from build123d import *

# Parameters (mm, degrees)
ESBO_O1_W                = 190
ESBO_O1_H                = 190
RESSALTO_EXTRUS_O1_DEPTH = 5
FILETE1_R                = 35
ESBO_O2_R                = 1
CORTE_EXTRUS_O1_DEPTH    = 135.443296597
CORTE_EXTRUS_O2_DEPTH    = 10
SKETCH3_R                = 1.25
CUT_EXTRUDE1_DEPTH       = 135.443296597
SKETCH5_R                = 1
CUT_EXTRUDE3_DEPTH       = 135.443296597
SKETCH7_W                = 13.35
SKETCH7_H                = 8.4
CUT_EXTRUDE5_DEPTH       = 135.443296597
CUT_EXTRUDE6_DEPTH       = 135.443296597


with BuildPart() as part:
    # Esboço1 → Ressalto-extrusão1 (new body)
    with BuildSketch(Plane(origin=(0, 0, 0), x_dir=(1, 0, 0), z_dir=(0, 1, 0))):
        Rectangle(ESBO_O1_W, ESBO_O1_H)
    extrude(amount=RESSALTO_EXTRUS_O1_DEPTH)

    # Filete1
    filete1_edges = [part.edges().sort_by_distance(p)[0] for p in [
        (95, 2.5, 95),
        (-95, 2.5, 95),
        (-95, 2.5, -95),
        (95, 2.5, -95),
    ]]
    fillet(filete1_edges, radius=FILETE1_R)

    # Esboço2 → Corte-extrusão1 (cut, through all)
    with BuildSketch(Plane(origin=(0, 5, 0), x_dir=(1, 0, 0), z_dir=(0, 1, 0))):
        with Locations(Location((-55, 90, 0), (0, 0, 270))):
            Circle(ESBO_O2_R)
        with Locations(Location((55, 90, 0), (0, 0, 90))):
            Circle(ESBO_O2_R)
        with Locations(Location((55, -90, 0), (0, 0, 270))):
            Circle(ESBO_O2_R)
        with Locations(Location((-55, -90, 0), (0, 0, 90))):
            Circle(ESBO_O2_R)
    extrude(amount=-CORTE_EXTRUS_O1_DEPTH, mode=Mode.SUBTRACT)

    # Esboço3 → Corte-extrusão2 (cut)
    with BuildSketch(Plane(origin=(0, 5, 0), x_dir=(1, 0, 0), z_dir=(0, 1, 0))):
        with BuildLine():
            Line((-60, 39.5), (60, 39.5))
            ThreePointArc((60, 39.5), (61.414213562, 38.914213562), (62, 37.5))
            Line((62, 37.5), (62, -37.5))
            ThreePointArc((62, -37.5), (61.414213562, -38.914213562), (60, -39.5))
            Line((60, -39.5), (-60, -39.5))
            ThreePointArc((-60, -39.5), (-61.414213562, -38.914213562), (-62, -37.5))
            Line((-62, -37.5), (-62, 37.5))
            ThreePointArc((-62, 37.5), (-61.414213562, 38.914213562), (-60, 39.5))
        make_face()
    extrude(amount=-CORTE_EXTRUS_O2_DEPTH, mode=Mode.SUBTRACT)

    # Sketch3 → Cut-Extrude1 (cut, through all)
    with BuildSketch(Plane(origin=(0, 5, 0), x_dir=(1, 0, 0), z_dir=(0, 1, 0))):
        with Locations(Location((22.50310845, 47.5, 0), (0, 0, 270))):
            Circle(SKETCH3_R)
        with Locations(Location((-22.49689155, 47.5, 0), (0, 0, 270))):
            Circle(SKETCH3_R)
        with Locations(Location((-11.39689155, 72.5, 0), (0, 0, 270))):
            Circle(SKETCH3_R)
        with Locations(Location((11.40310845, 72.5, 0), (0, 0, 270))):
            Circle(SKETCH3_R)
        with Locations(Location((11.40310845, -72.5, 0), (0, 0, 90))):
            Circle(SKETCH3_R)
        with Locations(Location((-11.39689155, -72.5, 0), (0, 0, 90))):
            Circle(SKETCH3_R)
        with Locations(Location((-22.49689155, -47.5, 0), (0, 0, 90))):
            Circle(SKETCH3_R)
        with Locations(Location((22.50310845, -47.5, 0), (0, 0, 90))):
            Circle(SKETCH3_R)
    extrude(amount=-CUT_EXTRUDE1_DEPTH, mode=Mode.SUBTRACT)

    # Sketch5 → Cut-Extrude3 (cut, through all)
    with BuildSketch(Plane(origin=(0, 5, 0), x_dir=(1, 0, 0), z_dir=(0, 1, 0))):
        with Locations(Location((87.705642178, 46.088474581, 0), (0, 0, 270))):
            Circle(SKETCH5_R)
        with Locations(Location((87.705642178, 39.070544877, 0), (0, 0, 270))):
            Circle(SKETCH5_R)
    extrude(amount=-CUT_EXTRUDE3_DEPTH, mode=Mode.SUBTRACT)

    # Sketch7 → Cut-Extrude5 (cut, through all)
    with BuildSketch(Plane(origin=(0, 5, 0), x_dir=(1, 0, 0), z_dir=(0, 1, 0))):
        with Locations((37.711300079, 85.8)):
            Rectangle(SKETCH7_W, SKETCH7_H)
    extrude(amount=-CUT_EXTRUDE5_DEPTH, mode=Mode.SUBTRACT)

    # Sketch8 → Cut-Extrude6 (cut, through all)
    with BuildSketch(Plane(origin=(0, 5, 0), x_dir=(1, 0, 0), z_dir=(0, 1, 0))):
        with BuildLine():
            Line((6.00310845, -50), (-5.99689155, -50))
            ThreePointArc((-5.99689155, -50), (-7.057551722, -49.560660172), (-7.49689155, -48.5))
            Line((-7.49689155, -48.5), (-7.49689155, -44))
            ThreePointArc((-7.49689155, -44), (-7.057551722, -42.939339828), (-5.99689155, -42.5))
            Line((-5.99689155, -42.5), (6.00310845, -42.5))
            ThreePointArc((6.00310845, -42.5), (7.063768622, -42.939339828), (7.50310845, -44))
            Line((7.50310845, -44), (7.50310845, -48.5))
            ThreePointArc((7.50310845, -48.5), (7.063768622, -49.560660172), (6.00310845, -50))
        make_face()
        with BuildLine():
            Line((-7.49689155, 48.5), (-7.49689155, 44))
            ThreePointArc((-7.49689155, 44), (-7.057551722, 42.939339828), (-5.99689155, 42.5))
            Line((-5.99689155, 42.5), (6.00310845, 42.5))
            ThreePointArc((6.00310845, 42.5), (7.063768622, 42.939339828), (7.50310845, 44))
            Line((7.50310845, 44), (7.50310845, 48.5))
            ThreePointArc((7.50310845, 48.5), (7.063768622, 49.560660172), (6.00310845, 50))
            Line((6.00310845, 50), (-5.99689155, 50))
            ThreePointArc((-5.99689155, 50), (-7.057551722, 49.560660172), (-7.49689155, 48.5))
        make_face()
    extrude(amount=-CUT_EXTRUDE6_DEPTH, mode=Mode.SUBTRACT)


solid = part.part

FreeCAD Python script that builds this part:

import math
import FreeCAD as App
import Part
import Sketcher

V = App.Vector
Q = App.Units.Quantity


def edges_at(feature, points):
    """Names of the edges that pass closest to the given points."""
    edges = feature.Shape.Edges
    near = lambda p: min(range(len(edges)), key=lambda i: edges[i].distToShape(Part.Vertex(*p))[0])
    return sorted({f"Edge{near(p) + 1}" for p in points})


def add_polygon(sketch, points):
    """Adds a closed chain of lines whose ends are joined by coincident constraints."""
    first, n = sketch.GeometryCount, len(points)
    for a, b in zip(points, points[1:] + points[:1]):
        sketch.addGeometry(Part.LineSegment(App.Vector(*a, 0), App.Vector(*b, 0)), False)
    for i in range(n):
        sketch.addConstraint(Sketcher.Constraint("Coincident", first + i, 2, first + (i + 1) % n, 1))

doc = App.newDocument("Part")
body = doc.addObject("PartDesign::Body", "Body")

sketch1 = doc.addObject("Sketcher::SketchObject", "Sketch")
body.addObject(sketch1)
sketch1.AttachmentSupport = (doc.XZ_Plane, [""])
sketch1.MapMode = "FlatFace"
add_polygon(sketch1, [(-95, -95), (-95, 95), (95, 95), (95, -95)])
sketch1.addConstraint([
    Sketcher.Constraint("Vertical", 0),
    Sketcher.Constraint("Horizontal", 1),
    Sketcher.Constraint("Vertical", 2),
    Sketcher.Constraint("Horizontal", 3),
    Sketcher.Constraint("Symmetric", 0, 2, 2, 2, -1, 1),
    Sketcher.Constraint("Equal", 3, 0),
    Sketcher.Constraint("DistanceX", 1, 1, 1, 2, Q("190 mm")),
])
pad1 = doc.addObject("PartDesign::Pad", "Pad")
body.addObject(pad1)
pad1.Profile = sketch1
pad1.Length = 5
pad1.Reversed = True
doc.recompute()

fillet = doc.addObject("PartDesign::Fillet", "Fillet")
body.addObject(fillet)
fillet.Base = (pad1, edges_at(pad1, [
    (95, 2.5, 95),
    (-95, 2.5, 95),
    (-95, 2.5, -95),
    (95, 2.5, -95),
]))
fillet.Radius = 35

sketch2 = doc.addObject("Sketcher::SketchObject", "Sketch001")
body.addObject(sketch2)
sketch2.AttachmentSupport = (doc.XZ_Plane, [""])
sketch2.MapMode = "FlatFace"
sketch2.AttachmentOffset = App.Placement(V(0, 0, -5), App.Rotation())
sketch2.addGeometry([
    Part.Circle(V(-55, -90, 0), V(0, 0, 1), 1),
    Part.Circle(V(55, -90, 0), V(0, 0, 1), 1),
    Part.Circle(V(55, 90, 0), V(0, 0, 1), 1),
    Part.Circle(V(-55, 90, 0), V(0, 0, 1), 1),
], False)
sketch2.addConstraint([
    Sketcher.Constraint("Equal", 0, 1),
    Sketcher.Constraint("Equal", 1, 2),
    Sketcher.Constraint("Equal", 2, 3),
    Sketcher.Constraint("Symmetric", 0, 3, 2, 3, -1, 1),
    Sketcher.Constraint("Symmetric", 1, 3, 3, 3, -1, 1),
    Sketcher.Constraint("Symmetric", 0, 3, 1, 3, -2),
    Sketcher.Constraint("Diameter", 0, Q("2 mm")),
    Sketcher.Constraint("DistanceX", 0, 3, -1, 1, Q("55 mm")),
    Sketcher.Constraint("DistanceY", 0, 3, -1, 1, Q("90 mm")),
])
pocket1 = doc.addObject("PartDesign::Pocket", "Pocket")
body.addObject(pocket1)
pocket1.Profile = sketch2
pocket1.Type = "ThroughAll"
pocket1.Reversed = True

sketch3 = doc.addObject("Sketcher::SketchObject", "Sketch002")
body.addObject(sketch3)
sketch3.AttachmentSupport = (doc.XZ_Plane, [""])
sketch3.MapMode = "FlatFace"
sketch3.AttachmentOffset = App.Placement(V(0, 0, -5), App.Rotation())
sketch3.addGeometry([
    Part.LineSegment(V(60, -39.5, 0), V(-60, -39.5, 0)),
    Part.ArcOfCircle(Part.Circle(V(-60, -37.5, 0), V(0, 0, 1), 2), math.radians(-180), math.radians(-90)),
    Part.LineSegment(V(-62, -37.5, 0), V(-62, 37.5, 0)),
    Part.ArcOfCircle(Part.Circle(V(-60, 37.5, 0), V(0, 0, 1), 2), math.radians(90), math.radians(180)),
    Part.LineSegment(V(-60, 39.5, 0), V(60, 39.5, 0)),
    Part.ArcOfCircle(Part.Circle(V(60, 37.5, 0), V(0, 0, 1), 2), math.radians(0), math.radians(90)),
    Part.LineSegment(V(62, 37.5, 0), V(62, -37.5, 0)),
    Part.ArcOfCircle(Part.Circle(V(60, -37.5, 0), V(0, 0, 1), 2), math.radians(-90), math.radians(0)),
], False)
sketch3.addConstraint([
    Sketcher.Constraint("Tangent", 0, 2, 1, 2),
    Sketcher.Constraint("Tangent", 1, 1, 2, 1),
    Sketcher.Constraint("Tangent", 2, 2, 3, 2),
    Sketcher.Constraint("Tangent", 3, 1, 4, 1),
    Sketcher.Constraint("Tangent", 4, 2, 5, 2),
    Sketcher.Constraint("Tangent", 5, 1, 6, 1),
    Sketcher.Constraint("Tangent", 6, 2, 7, 2),
    Sketcher.Constraint("Tangent", 7, 1, 0, 1),
    Sketcher.Constraint("Horizontal", 0),
    Sketcher.Constraint("Vertical", 2),
    Sketcher.Constraint("Horizontal", 4),
    Sketcher.Constraint("Vertical", 6),
    Sketcher.Constraint("Equal", 1, 3),
    Sketcher.Constraint("Equal", 3, 5),
    Sketcher.Constraint("Equal", 5, 7),
    Sketcher.Constraint("Symmetric", 1, 3, 5, 3, -1, 1),
    Sketcher.Constraint("Radius", 1, Q("2 mm")),
    Sketcher.Constraint("DistanceX", 0, 2, 0, 1, Q("120 mm")),
    Sketcher.Constraint("DistanceY", 2, 1, 2, 2, Q("75 mm")),
])
pocket2 = doc.addObject("PartDesign::Pocket", "Pocket001")
body.addObject(pocket2)
pocket2.Profile = sketch3
pocket2.Length = 10
pocket2.Reversed = True

sketch4 = doc.addObject("Sketcher::SketchObject", "Sketch003")
body.addObject(sketch4)
sketch4.AttachmentSupport = (doc.XZ_Plane, [""])
sketch4.MapMode = "FlatFace"
sketch4.AttachmentOffset = App.Placement(V(0, 0, -5), App.Rotation())
sketch4.addGeometry([
    Part.Circle(V(22.503108, -47.5, 0), V(0, 0, 1), 1.25),
    Part.Circle(V(-22.496892, -47.5, 0), V(0, 0, 1), 1.25),
    Part.Circle(V(-11.396892, -72.5, 0), V(0, 0, 1), 1.25),
    Part.Circle(V(11.403108, -72.5, 0), V(0, 0, 1), 1.25),
    Part.Circle(V(11.403108, 72.5, 0), V(0, 0, 1), 1.25),
    Part.Circle(V(-11.396892, 72.5, 0), V(0, 0, 1), 1.25),
    Part.Circle(V(-22.496892, 47.5, 0), V(0, 0, 1), 1.25),
    Part.Circle(V(22.503108, 47.5, 0), V(0, 0, 1), 1.25),
], False)
sketch4.addConstraint([
    Sketcher.Constraint("Equal", 0, 1),
    Sketcher.Constraint("Equal", 1, 2),
    Sketcher.Constraint("Equal", 2, 3),
    Sketcher.Constraint("Equal", 3, 4),
    Sketcher.Constraint("Equal", 4, 5),
    Sketcher.Constraint("Equal", 5, 6),
    Sketcher.Constraint("Equal", 6, 7),
    Sketcher.Constraint("Symmetric", 3, 3, 4, 3, -1),
    Sketcher.Constraint("Symmetric", 2, 3, 5, 3, -1),
    Sketcher.Constraint("Symmetric", 1, 3, 6, 3, -1),
    Sketcher.Constraint("Symmetric", 0, 3, 7, 3, -1),
    Sketcher.Constraint("Horizontal", 0, 3, 1, 3),
    Sketcher.Constraint("Horizontal", 2, 3, 3, 3),
    Sketcher.Constraint("Diameter", 0, Q("2.5 mm")),
    Sketcher.Constraint("DistanceX", 1, 3, 0, 3, Q("45 mm")),
    Sketcher.Constraint("DistanceY", 2, 3, 1, 3, Q("25 mm")),
    Sketcher.Constraint("DistanceY", 0, 3, 4, 3, Q("120 mm")),
    Sketcher.Constraint("DistanceX", 1, 3, 2, 3, Q("11.1 mm")),
    Sketcher.Constraint("DistanceX", 2, 3, 3, 3, Q("22.8 mm")),
    Sketcher.Constraint("DistanceX", -1, 1, 0, 3, Q("22.503108 mm")),
])
pocket3 = doc.addObject("PartDesign::Pocket", "Pocket002")
body.addObject(pocket3)
pocket3.Profile = sketch4
pocket3.Type = "ThroughAll"
pocket3.Reversed = True

sketch5 = doc.addObject("Sketcher::SketchObject", "Sketch004")
body.addObject(sketch5)
sketch5.AttachmentSupport = (doc.XZ_Plane, [""])
sketch5.MapMode = "FlatFace"
sketch5.AttachmentOffset = App.Placement(V(0, 0, -5), App.Rotation())
sketch5.addGeometry([
    Part.Circle(V(87.705642, -46.088475, 0), V(0, 0, 1), 1),
    Part.Circle(V(87.705642, -39.070545, 0), V(0, 0, 1), 1),
], False)
sketch5.addConstraint([
    Sketcher.Constraint("Equal", 0, 1),
    Sketcher.Constraint("Vertical", 0, 3, 1, 3),
    Sketcher.Constraint("Diameter", 0, Q("2 mm")),
    Sketcher.Constraint("DistanceY", 0, 3, 1, 3, Q("7.01793 mm")),
    Sketcher.Constraint("DistanceX", -1, 1, 0, 3, Q("87.705642 mm")),
    Sketcher.Constraint("DistanceY", 0, 3, -1, 1, Q("46.088475 mm")),
])
pocket4 = doc.addObject("PartDesign::Pocket", "Pocket003")
body.addObject(pocket4)
pocket4.Profile = sketch5
pocket4.Type = "ThroughAll"
pocket4.Reversed = True

sketch6 = doc.addObject("Sketcher::SketchObject", "Sketch005")
body.addObject(sketch6)
sketch6.AttachmentSupport = (doc.XZ_Plane, [""])
sketch6.MapMode = "FlatFace"
sketch6.AttachmentOffset = App.Placement(V(0, 0, -5), App.Rotation())
add_polygon(sketch6, [(31.0363, -90), (31.0363, -81.6), (44.3863, -81.6), (44.3863, -90)])
sketch6.addConstraint([
    Sketcher.Constraint("Vertical", 0),
    Sketcher.Constraint("Horizontal", 1),
    Sketcher.Constraint("Vertical", 2),
    Sketcher.Constraint("Horizontal", 3),
    Sketcher.Constraint("DistanceY", 0, 1, 0, 2, Q("8.4 mm")),
    Sketcher.Constraint("DistanceY", 2, 2, -1, 1, Q("90 mm")),
    Sketcher.Constraint("DistanceX", 1, 1, 1, 2, Q("13.35 mm")),
    Sketcher.Constraint("DistanceX", -1, 1, 0, 2, Q("31.0363 mm")),
])
pocket5 = doc.addObject("PartDesign::Pocket", "Pocket004")
body.addObject(pocket5)
pocket5.Profile = sketch6
pocket5.Type = "ThroughAll"
pocket5.Reversed = True

sketch7 = doc.addObject("Sketcher::SketchObject", "Sketch006")
body.addObject(sketch7)
sketch7.AttachmentSupport = (doc.XZ_Plane, [""])
sketch7.MapMode = "FlatFace"
sketch7.AttachmentOffset = App.Placement(V(0, 0, -5), App.Rotation())
sketch7.addGeometry([
    Part.LineSegment(V(-5.996892, 50, 0), V(6.003108, 50, 0)),
    Part.ArcOfCircle(Part.Circle(V(6.003108, 48.5, 0), V(0, 0, 1), 1.5), math.radians(0), math.radians(90)),
    Part.LineSegment(V(7.503108, 48.5, 0), V(7.503108, 44, 0)),
    Part.ArcOfCircle(Part.Circle(V(6.003108, 44, 0), V(0, 0, 1), 1.5), math.radians(-90), math.radians(0)),
    Part.LineSegment(V(6.003108, 42.5, 0), V(-5.996892, 42.5, 0)),
    Part.ArcOfCircle(Part.Circle(V(-5.996892, 44, 0), V(0, 0, 1), 1.5), math.radians(180), math.radians(270)),
    Part.LineSegment(V(-7.496892, 44, 0), V(-7.496892, 48.5, 0)),
    Part.ArcOfCircle(Part.Circle(V(-5.996892, 48.5, 0), V(0, 0, 1), 1.5), math.radians(90), math.radians(180)),
    Part.LineSegment(V(-7.496892, -48.5, 0), V(-7.496892, -44, 0)),
    Part.ArcOfCircle(Part.Circle(V(-5.996892, -44, 0), V(0, 0, 1), 1.5), math.radians(90), math.radians(180)),
    Part.LineSegment(V(-5.996892, -42.5, 0), V(6.003108, -42.5, 0)),
    Part.ArcOfCircle(Part.Circle(V(6.003108, -44, 0), V(0, 0, 1), 1.5), math.radians(0), math.radians(90)),
    Part.LineSegment(V(7.503108, -44, 0), V(7.503108, -48.5, 0)),
    Part.ArcOfCircle(Part.Circle(V(6.003108, -48.5, 0), V(0, 0, 1), 1.5), math.radians(-90), math.radians(0)),
    Part.LineSegment(V(6.003108, -50, 0), V(-5.996892, -50, 0)),
    Part.ArcOfCircle(Part.Circle(V(-5.996892, -48.5, 0), V(0, 0, 1), 1.5), math.radians(180), math.radians(270)),
], False)
sketch7.addConstraint([
    Sketcher.Constraint("Tangent", 0, 2, 1, 2),
    Sketcher.Constraint("Tangent", 1, 1, 2, 1),
    Sketcher.Constraint("Tangent", 2, 2, 3, 2),
    Sketcher.Constraint("Tangent", 3, 1, 4, 1),
    Sketcher.Constraint("Tangent", 4, 2, 5, 2),
    Sketcher.Constraint("Tangent", 5, 1, 6, 1),
    Sketcher.Constraint("Tangent", 6, 2, 7, 2),
    Sketcher.Constraint("Tangent", 7, 1, 0, 1),
    Sketcher.Constraint("Tangent", 8, 2, 9, 2),
    Sketcher.Constraint("Tangent", 9, 1, 10, 1),
    Sketcher.Constraint("Tangent", 10, 2, 11, 2),
    Sketcher.Constraint("Tangent", 11, 1, 12, 1),
    Sketcher.Constraint("Tangent", 12, 2, 13, 2),
    Sketcher.Constraint("Tangent", 13, 1, 14, 1),
    Sketcher.Constraint("Tangent", 14, 2, 15, 2),
    Sketcher.Constraint("Tangent", 15, 1, 8, 1),
    Sketcher.Constraint("Horizontal", 0),
    Sketcher.Constraint("Vertical", 2),
    Sketcher.Constraint("Horizontal", 4),
    Sketcher.Constraint("Vertical", 6),
    Sketcher.Constraint("Vertical", 8),
    Sketcher.Constraint("Horizontal", 10),
    Sketcher.Constraint("Vertical", 12),
    Sketcher.Constraint("Horizontal", 14),
    Sketcher.Constraint("Equal", 1, 3),
    Sketcher.Constraint("Equal", 3, 5),
    Sketcher.Constraint("Equal", 5, 7),
    Sketcher.Constraint("Equal", 7, 9),
    Sketcher.Constraint("Equal", 9, 11),
    Sketcher.Constraint("Equal", 11, 13),
    Sketcher.Constraint("Equal", 13, 15),
    Sketcher.Constraint("Symmetric", 5, 3, 9, 3, -1),
    Sketcher.Constraint("Symmetric", 1, 3, 13, 3, -1),
    Sketcher.Constraint("Radius", 1, Q("1.5 mm")),
    Sketcher.Constraint("DistanceX", 0, 1, 0, 2, Q("12 mm")),
    Sketcher.Constraint("DistanceY", 2, 2, 2, 1, Q("4.5 mm")),
    Sketcher.Constraint("DistanceY", -1, 1, 3, 3, Q("44 mm")),
    Sketcher.Constraint("DistanceX", -1, 1, 1, 3, Q("6.003108 mm")),
])
pocket6 = doc.addObject("PartDesign::Pocket", "Pocket005")
body.addObject(pocket6)
pocket6.Profile = sketch7
pocket6.Type = "ThroughAll"
pocket6.Reversed = True

doc.recompute()
